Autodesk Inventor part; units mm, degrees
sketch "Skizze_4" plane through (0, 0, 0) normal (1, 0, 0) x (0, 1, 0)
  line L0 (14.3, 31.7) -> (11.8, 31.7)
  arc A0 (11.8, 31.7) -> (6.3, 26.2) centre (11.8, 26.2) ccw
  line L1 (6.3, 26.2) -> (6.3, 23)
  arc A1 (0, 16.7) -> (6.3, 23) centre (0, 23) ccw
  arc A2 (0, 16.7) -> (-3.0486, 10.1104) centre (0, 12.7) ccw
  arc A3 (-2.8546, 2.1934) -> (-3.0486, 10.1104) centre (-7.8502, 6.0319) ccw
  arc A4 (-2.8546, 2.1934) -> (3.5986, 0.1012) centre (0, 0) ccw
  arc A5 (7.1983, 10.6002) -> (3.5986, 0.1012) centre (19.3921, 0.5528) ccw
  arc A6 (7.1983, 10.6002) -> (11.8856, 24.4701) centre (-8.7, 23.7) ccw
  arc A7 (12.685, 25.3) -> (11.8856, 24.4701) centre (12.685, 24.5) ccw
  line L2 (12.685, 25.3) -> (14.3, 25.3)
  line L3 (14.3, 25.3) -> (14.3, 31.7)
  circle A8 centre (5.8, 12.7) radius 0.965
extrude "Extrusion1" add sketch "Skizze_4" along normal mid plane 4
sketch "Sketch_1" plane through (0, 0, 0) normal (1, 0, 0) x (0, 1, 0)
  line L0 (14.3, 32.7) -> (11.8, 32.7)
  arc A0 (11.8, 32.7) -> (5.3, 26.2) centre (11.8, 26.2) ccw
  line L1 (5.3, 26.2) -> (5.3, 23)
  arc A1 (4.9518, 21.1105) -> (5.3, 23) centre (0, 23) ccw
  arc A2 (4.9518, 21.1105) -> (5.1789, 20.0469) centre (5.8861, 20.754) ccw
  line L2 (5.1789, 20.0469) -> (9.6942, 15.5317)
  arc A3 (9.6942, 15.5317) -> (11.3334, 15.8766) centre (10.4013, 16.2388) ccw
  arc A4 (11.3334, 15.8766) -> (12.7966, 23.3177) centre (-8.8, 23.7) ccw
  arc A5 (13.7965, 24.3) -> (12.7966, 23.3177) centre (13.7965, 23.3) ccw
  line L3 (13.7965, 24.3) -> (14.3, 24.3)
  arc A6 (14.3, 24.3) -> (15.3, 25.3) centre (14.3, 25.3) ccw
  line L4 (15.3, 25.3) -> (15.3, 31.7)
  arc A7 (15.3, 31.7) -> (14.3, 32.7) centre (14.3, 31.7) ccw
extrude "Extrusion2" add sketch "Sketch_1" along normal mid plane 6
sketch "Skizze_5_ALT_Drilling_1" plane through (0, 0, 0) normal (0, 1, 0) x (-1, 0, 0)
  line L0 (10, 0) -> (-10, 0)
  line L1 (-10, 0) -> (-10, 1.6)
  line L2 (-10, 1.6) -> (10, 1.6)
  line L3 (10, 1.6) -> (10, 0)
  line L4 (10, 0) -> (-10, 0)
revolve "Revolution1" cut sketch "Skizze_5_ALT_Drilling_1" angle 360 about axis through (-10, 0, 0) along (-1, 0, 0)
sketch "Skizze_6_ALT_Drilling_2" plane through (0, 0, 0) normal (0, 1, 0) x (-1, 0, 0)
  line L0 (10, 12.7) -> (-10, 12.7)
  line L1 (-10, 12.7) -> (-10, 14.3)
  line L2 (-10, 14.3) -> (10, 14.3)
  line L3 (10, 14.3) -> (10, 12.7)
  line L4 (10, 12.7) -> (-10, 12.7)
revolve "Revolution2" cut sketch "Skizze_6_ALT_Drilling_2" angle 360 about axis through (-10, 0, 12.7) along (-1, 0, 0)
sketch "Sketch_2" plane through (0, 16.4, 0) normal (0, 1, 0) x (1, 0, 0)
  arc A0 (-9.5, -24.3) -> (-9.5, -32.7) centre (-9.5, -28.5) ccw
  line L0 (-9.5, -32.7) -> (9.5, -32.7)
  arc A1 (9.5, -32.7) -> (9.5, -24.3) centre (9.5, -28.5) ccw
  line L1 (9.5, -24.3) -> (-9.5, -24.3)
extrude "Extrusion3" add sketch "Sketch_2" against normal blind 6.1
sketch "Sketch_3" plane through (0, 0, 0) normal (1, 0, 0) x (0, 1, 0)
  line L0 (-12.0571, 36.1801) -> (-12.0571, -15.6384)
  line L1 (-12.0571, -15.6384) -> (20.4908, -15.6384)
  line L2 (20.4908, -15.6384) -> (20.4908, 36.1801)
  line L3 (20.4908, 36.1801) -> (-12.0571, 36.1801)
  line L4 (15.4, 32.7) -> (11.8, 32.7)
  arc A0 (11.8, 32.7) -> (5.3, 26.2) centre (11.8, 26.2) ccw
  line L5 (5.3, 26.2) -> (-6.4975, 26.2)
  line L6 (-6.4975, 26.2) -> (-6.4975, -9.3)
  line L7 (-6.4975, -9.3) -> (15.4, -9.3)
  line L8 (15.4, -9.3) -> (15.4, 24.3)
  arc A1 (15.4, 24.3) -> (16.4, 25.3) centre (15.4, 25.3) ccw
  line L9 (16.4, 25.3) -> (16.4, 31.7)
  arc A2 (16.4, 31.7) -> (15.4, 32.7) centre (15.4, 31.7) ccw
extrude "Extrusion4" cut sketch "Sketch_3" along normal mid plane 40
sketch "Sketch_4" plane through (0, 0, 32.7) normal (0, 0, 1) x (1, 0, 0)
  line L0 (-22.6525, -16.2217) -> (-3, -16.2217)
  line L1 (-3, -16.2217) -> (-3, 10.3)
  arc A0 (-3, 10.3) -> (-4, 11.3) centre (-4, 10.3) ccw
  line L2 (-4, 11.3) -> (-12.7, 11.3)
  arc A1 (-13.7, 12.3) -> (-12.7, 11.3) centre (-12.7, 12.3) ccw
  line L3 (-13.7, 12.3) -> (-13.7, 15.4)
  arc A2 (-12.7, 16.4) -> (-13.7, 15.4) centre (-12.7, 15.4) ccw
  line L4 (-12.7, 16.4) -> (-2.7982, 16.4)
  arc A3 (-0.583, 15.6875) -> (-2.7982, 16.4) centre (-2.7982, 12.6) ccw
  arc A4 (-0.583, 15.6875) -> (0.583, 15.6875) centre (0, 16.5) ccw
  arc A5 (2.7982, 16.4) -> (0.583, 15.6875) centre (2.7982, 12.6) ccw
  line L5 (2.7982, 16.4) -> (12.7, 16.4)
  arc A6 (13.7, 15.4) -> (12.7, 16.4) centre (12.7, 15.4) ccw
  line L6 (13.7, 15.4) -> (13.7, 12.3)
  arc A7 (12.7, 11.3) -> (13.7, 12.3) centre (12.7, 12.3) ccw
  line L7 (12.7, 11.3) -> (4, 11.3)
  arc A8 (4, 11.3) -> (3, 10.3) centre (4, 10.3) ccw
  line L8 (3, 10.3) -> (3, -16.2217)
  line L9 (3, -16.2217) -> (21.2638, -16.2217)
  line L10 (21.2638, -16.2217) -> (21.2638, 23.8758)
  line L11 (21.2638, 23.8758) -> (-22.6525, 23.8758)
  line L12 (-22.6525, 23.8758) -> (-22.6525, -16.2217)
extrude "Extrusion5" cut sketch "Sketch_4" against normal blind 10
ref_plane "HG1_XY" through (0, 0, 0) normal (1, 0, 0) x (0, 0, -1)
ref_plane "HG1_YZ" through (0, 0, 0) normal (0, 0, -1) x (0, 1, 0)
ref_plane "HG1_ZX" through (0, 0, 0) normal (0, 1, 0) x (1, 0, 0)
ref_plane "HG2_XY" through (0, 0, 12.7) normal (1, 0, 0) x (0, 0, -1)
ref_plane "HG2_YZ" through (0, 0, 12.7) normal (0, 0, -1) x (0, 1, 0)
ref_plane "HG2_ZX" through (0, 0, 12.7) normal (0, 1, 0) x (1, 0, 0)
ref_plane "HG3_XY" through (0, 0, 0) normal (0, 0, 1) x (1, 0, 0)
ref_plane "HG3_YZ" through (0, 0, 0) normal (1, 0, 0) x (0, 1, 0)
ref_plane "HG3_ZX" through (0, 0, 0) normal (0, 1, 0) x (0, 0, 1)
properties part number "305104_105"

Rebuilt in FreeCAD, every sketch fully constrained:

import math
import FreeCAD as App
import Part
import Sketcher
Q = App.Units.Quantity

doc = App.newDocument("Part")
body = doc.addObject("PartDesign::Body", "Body")

sketch1 = body.newObject("Sketcher::SketchObject", "Sketch")
sketch1.AttachmentSupport = (doc.getObject("YZ_Plane"), [""])
sketch1.MapMode = "FlatFace"
sketch1.addGeometry(Part.LineSegment(App.Vector(14.3, 25.3, 0), App.Vector(14.3, 31.7, 0)), False)
sketch1.addGeometry(Part.LineSegment(App.Vector(14.3, 31.7, 0), App.Vector(11.8, 31.7, 0)), False)
sketch1.addGeometry(Part.ArcOfCircle(Part.Circle(App.Vector(11.8, 26.2, 0), App.Vector(0, 0, 1), 5.5), math.radians(90), math.radians(180)), False)
sketch1.addGeometry(Part.LineSegment(App.Vector(6.3, 26.2, 0), App.Vector(6.3, 23, 0)), False)
sketch1.addGeometry(Part.ArcOfCircle(Part.Circle(App.Vector(0, 23, 0), App.Vector(0, 0, 1), 6.3), math.radians(-90), math.radians(0)), False)
sketch1.addGeometry(Part.ArcOfCircle(Part.Circle(App.Vector(0, 12.7, 0), App.Vector(0, 0, 1), 4), math.radians(90), math.radians(220)), False)
sketch1.addGeometry(Part.ArcOfCircle(Part.Circle(App.Vector(-7.9, 6, 0), App.Vector(0, 0, 1), 6.3), math.radians(-38), math.radians(40)), False)
sketch1.addGeometry(Part.ArcOfCircle(Part.Circle(App.Vector(0, 0, 0), App.Vector(0, 0, 1), 3.6), math.radians(142), math.radians(362)), False)
sketch1.addGeometry(Part.ArcOfCircle(Part.Circle(App.Vector(19.4, 0.6, 0), App.Vector(0, 0, 1), 15.8), math.radians(141), math.radians(182)), False)
sketch1.addGeometry(Part.ArcOfCircle(Part.Circle(App.Vector(-8.7, 23.7, 0), App.Vector(0, 0, 1), 20.6), math.radians(-39), math.radians(2)), False)
sketch1.addGeometry(Part.ArcOfCircle(Part.Circle(App.Vector(12.7, 24.5, 0), App.Vector(0, 0, 1), 0.8), math.radians(90), math.radians(182)), False)
sketch1.addGeometry(Part.LineSegment(App.Vector(12.7, 25.3, 0), App.Vector(14.3, 25.3, 0)), False)
sketch1.addGeometry(Part.Circle(App.Vector(5.8, 12.7, 0), App.Vector(0, 0, 1), 1), False)
sketch1.addConstraint(Sketcher.Constraint("Coincident", 0, 2, 1, 1))
sketch1.addConstraint(Sketcher.Constraint("Tangent", 1, 2, 2, 1))
sketch1.addConstraint(Sketcher.Constraint("Tangent", 2, 2, 3, 1))
sketch1.addConstraint(Sketcher.Constraint("Tangent", 3, 2, 4, 2))
sketch1.addConstraint(Sketcher.Constraint("Tangent", 4, 1, 5, 1))
sketch1.addConstraint(Sketcher.Constraint("Tangent", 5, 2, 6, 2))
sketch1.addConstraint(Sketcher.Constraint("Tangent", 6, 1, 7, 1))
sketch1.addConstraint(Sketcher.Constraint("Tangent", 7, 2, 8, 2))
sketch1.addConstraint(Sketcher.Constraint("Tangent", 8, 1, 9, 1))
sketch1.addConstraint(Sketcher.Constraint("Tangent", 9, 2, 10, 2))
sketch1.addConstraint(Sketcher.Constraint("Tangent", 10, 1, 11, 1))
sketch1.addConstraint(Sketcher.Constraint("Coincident", 11, 2, 0, 1))
sketch1.addConstraint(Sketcher.Constraint("Vertical", 0))
sketch1.addConstraint(Sketcher.Constraint("Horizontal", 1))
sketch1.addConstraint(Sketcher.Constraint("Vertical", 3))
sketch1.addConstraint(Sketcher.Constraint("Horizontal", 11))
sketch1.addConstraint(Sketcher.Constraint("Coincident", 7, 3, -1, 1))
sketch1.addConstraint(Sketcher.Constraint("Equal", 4, 6))
sketch1.addConstraint(Sketcher.Constraint("PointOnObject", 4, 3, -2))
sketch1.addConstraint(Sketcher.Constraint("PointOnObject", 5, 3, -2))
sketch1.addConstraint(Sketcher.Constraint("Horizontal", 5, 3, 12, 3))
sketch1.addConstraint(Sketcher.Constraint("Radius", 5, 4.0))
sketch1.addConstraint(Sketcher.Constraint("Radius", 2, 5.5))
sketch1.addConstraint(Sketcher.Constraint("Radius", 4, 6.3))
sketch1.addConstraint(Sketcher.Constraint("Radius", 7, 3.6))
sketch1.addConstraint(Sketcher.Constraint("Radius", 8, 15.8))
sketch1.addConstraint(Sketcher.Constraint("Radius", 9, 20.6))
sketch1.addConstraint(Sketcher.Constraint("Radius", 10, 0.8))
sketch1.addConstraint(Sketcher.Constraint("Diameter", 12, 1.93))
sketch1.addConstraint(Sketcher.Constraint("DistanceX", 1, 2, 1, 1, 2.5))
sketch1.addConstraint(Sketcher.Constraint("DistanceY", 0, 1, 0, 2, 6.4))
sketch1.addConstraint(Sketcher.Constraint("DistanceY", 3, 2, 3, 1, 3.2))
sketch1.addConstraint(Sketcher.Constraint("DistanceY", -1, 1, 4, 3, 23.0))
sketch1.addConstraint(Sketcher.Constraint("DistanceY", 5, 3, 9, 3, 11.0))
sketch1.addConstraint(Sketcher.Constraint("DistanceX", 12, 3, 2, 3, 6.0))
sketch1.addConstraint(Sketcher.Constraint("DistanceX", 9, 3, -1, 1, 8.7))
pad1 = body.newObject("PartDesign::Pad", "Pad")
pad1.Profile = sketch1
pad1.Length = 4
pad1.Midplane = True

sketch2 = body.newObject("Sketcher::SketchObject", "Sketch001")
sketch2.AttachmentSupport = (doc.getObject("YZ_Plane"), [""])
sketch2.MapMode = "FlatFace"
sketch2.addGeometry(Part.ArcOfCircle(Part.Circle(App.Vector(14.3, 31.7, 0), App.Vector(0, 0, 1), 1), math.radians(0), math.radians(90)), False)
sketch2.addGeometry(Part.LineSegment(App.Vector(14.3, 32.7, 0), App.Vector(11.8, 32.7, 0)), False)
sketch2.addGeometry(Part.ArcOfCircle(Part.Circle(App.Vector(11.8, 26.2, 0), App.Vector(0, 0, 1), 6.5), math.radians(90), math.radians(180)), False)
sketch2.addGeometry(Part.LineSegment(App.Vector(5.3, 26.2, 0), App.Vector(5.3, 23, 0)), False)
sketch2.addGeometry(Part.ArcOfCircle(Part.Circle(App.Vector(0, 23, 0), App.Vector(0, 0, 1), 5.3), math.radians(-21), math.radians(0)), False)
sketch2.addGeometry(Part.ArcOfCircle(Part.Circle(App.Vector(5.9, 20.8, 0), App.Vector(0, 0, 1), 1), math.radians(159), math.radians(225)), False)
sketch2.addGeometry(Part.LineSegment(App.Vector(5.2, 20, 0), App.Vector(9.7, 15.5, 0)), False)
sketch2.addGeometry(Part.ArcOfCircle(Part.Circle(App.Vector(10.4, 16.2, 0), App.Vector(0, 0, 1), 1), math.radians(-135), math.radians(-21)), False)
sketch2.addGeometry(Part.ArcOfCircle(Part.Circle(App.Vector(-8.8, 23.7, 0), App.Vector(0, 0, 1), 21.6), math.radians(-21), math.radians(-1)), False)
sketch2.addGeometry(Part.ArcOfCircle(Part.Circle(App.Vector(13.8, 23.3, 0), App.Vector(0, 0, 1), 1), math.radians(90), math.radians(179)), False)
sketch2.addGeometry(Part.LineSegment(App.Vector(13.8, 24.3, 0), App.Vector(14.3, 24.3, 0)), False)
sketch2.addGeometry(Part.ArcOfCircle(Part.Circle(App.Vector(14.3, 25.3, 0), App.Vector(0, 0, 1), 1), math.radians(-90), math.radians(0)), False)
sketch2.addGeometry(Part.LineSegment(App.Vector(15.3, 25.3, 0), App.Vector(15.3, 31.7, 0)), False)
sketch2.addConstraint(Sketcher.Constraint("Tangent", 0, 2, 1, 1))
sketch2.addConstraint(Sketcher.Constraint("Tangent", 1, 2, 2, 1))
sketch2.addConstraint(Sketcher.Constraint("Tangent", 2, 2, 3, 1))
sketch2.addConstraint(Sketcher.Constraint("Tangent", 3, 2, 4, 2))
sketch2.addConstraint(Sketcher.Constraint("Tangent", 4, 1, 5, 1))
sketch2.addConstraint(Sketcher.Constraint("Tangent", 5, 2, 6, 1))
sketch2.addConstraint(Sketcher.Constraint("Tangent", 6, 2, 7, 1))
sketch2.addConstraint(Sketcher.Constraint("Tangent", 7, 2, 8, 1))
sketch2.addConstraint(Sketcher.Constraint("Tangent", 8, 2, 9, 2))
sketch2.addConstraint(Sketcher.Constraint("Tangent", 9, 1, 10, 1))
sketch2.addConstraint(Sketcher.Constraint("Tangent", 10, 2, 11, 1))
sketch2.addConstraint(Sketcher.Constraint("Tangent", 11, 2, 12, 1))
sketch2.addConstraint(Sketcher.Constraint("Tangent", 12, 2, 0, 1))
sketch2.addConstraint(Sketcher.Constraint("Horizontal", 1))
sketch2.addConstraint(Sketcher.Constraint("Vertical", 3))
sketch2.addConstraint(Sketcher.Constraint("Horizontal", 10))
sketch2.addConstraint(Sketcher.Constraint("Vertical", 12))
sketch2.addConstraint(Sketcher.Constraint("Equal", 0, 5))
sketch2.addConstraint(Sketcher.Constraint("Equal", 5, 7))
sketch2.addConstraint(Sketcher.Constraint("Equal", 7, 9))
sketch2.addConstraint(Sketcher.Constraint("Equal", 9, 11))
sketch2.addConstraint(Sketcher.Constraint("Radius", 0, 1.0))
sketch2.addConstraint(Sketcher.Constraint("Radius", 2, 6.5))
sketch2.addConstraint(Sketcher.Constraint("Radius", 8, 21.6))
sketch2.addConstraint(Sketcher.Constraint("Angle", 6, Q("-44.9994 deg")))
sketch2.addConstraint(Sketcher.Constraint("DistanceX", 1, 2, 1, 1, 2.5))
sketch2.addConstraint(Sketcher.Constraint("DistanceY", 3, 2, 3, 1, 3.2))
sketch2.addConstraint(Sketcher.Constraint("DistanceY", 12, 1, 12, 2, 6.4))
sketch2.addConstraint(Sketcher.Constraint("DistanceY", -1, 1, 3, 2, 23.0))
sketch2.addConstraint(Sketcher.Constraint("DistanceY", 8, 3, 0, 3, 8.0))
sketch2.addConstraint(Sketcher.Constraint("DistanceX", -1, 1, 0, 3, 14.3))
sketch2.addConstraint(Sketcher.Constraint("DistanceX", 8, 3, -1, 1, 8.8))
sketch2.addConstraint(Sketcher.Constraint("Radius", 4, 5.2985))
sketch2.addConstraint(Sketcher.Constraint("DistanceX", -1, 1, 5, 3, 5.886))
pad2 = body.newObject("PartDesign::Pad", "Pad001")
pad2.Profile = sketch2
pad2.Length = 6
pad2.Midplane = True

sketch3 = body.newObject("Sketcher::SketchObject", "Sketch002")
sketch3.AttachmentSupport = (doc.getObject("XZ_Plane"), [""])
sketch3.MapMode = "FlatFace"
sketch3.addGeometry(Part.LineSegment(App.Vector(10, 0, 0), App.Vector(-10, 0, 0)), False)
sketch3.addGeometry(Part.LineSegment(App.Vector(-10, 0, 0), App.Vector(-10, 1.6, 0)), False)
sketch3.addGeometry(Part.LineSegment(App.Vector(-10, 1.6, 0), App.Vector(10, 1.6, 0)), False)
sketch3.addGeometry(Part.LineSegment(App.Vector(10, 1.6, 0), App.Vector(10, 0, 0)), False)
sketch3.addConstraint(Sketcher.Constraint("Coincident", 0, 2, 1, 1))
sketch3.addConstraint(Sketcher.Constraint("Coincident", 1, 2, 2, 1))
sketch3.addConstraint(Sketcher.Constraint("Coincident", 2, 2, 3, 1))
sketch3.addConstraint(Sketcher.Constraint("Coincident", 3, 2, 0, 1))
sketch3.addConstraint(Sketcher.Constraint("Horizontal", 0))
sketch3.addConstraint(Sketcher.Constraint("Vertical", 1))
sketch3.addConstraint(Sketcher.Constraint("Horizontal", 2))
sketch3.addConstraint(Sketcher.Constraint("Vertical", 3))
sketch3.addConstraint(Sketcher.Constraint("Symmetric", 0, 2, 3, 2, -1, 1))
sketch3.addConstraint(Sketcher.Constraint("DistanceX", 0, 2, 0, 1, 20.0))
sketch3.addConstraint(Sketcher.Constraint("DistanceY", 1, 1, 1, 2, 1.6))
groove = body.newObject("PartDesign::Groove", "Groove")
groove.Profile = sketch3
groove.ReferenceAxis = (sketch3, ["H_Axis"])
groove.Angle = 360

sketch4 = body.newObject("Sketcher::SketchObject", "Sketch003")
sketch4.AttachmentSupport = (doc.getObject("XZ_Plane"), [""])
sketch4.MapMode = "FlatFace"
sketch4.addGeometry(Part.LineSegment(App.Vector(10, 12.7, 0), App.Vector(-10, 12.7, 0)), False)
sketch4.addGeometry(Part.LineSegment(App.Vector(-10, 12.7, 0), App.Vector(-10, 14.3, 0)), False)
sketch4.addGeometry(Part.LineSegment(App.Vector(-10, 14.3, 0), App.Vector(10, 14.3, 0)), False)
sketch4.addGeometry(Part.LineSegment(App.Vector(10, 14.3, 0), App.Vector(10, 12.7, 0)), False)
sketch4.addGeometry(Part.LineSegment(App.Vector(10, 12.7, 0), App.Vector(-10, 12.7, 0)), True)
sketch4.addConstraint(Sketcher.Constraint("Coincident", 0, 2, 1, 1))
sketch4.addConstraint(Sketcher.Constraint("Coincident", 1, 2, 2, 1))
sketch4.addConstraint(Sketcher.Constraint("Coincident", 2, 2, 3, 1))
sketch4.addConstraint(Sketcher.Constraint("Coincident", 3, 2, 0, 1))
sketch4.addConstraint(Sketcher.Constraint("Horizontal", 0))
sketch4.addConstraint(Sketcher.Constraint("Vertical", 1))
sketch4.addConstraint(Sketcher.Constraint("Horizontal", 2))
sketch4.addConstraint(Sketcher.Constraint("Vertical", 3))
sketch4.addConstraint(Sketcher.Constraint("Horizontal", 4))
sketch4.addConstraint(Sketcher.Constraint("Coincident", 4, 1, 3, 2))
sketch4.addConstraint(Sketcher.Constraint("Vertical", 1, 2, 4, 2))
sketch4.addConstraint(Sketcher.Constraint("DistanceX", 0, 2, 0, 1, 20.0))
sketch4.addConstraint(Sketcher.Constraint("DistanceY", 1, 1, 1, 2, 1.6))
sketch4.addConstraint(Sketcher.Constraint("DistanceX", 0, 2, -1, 1, 10.0))
sketch4.addConstraint(Sketcher.Constraint("DistanceY", -1, 1, 0, 2, 12.7))
groove2 = body.newObject("PartDesign::Groove", "Groove001")
groove2.Profile = sketch4
groove2.ReferenceAxis = (sketch4, ["Axis0"])
groove2.Angle = 360

sketch5 = body.newObject("Sketcher::SketchObject", "Sketch004")
sketch5.AttachmentSupport = (doc.getObject("XZ_Plane"), [""])
sketch5.MapMode = "FlatFace"
sketch5.AttachmentOffset = App.Placement(App.Vector(0, 0, -16.4), App.Rotation())
sketch5.addGeometry(Part.LineSegment(App.Vector(9.5, 24.3, 0), App.Vector(-9.5, 24.3, 0)), False)
sketch5.addGeometry(Part.ArcOfCircle(Part.Circle(App.Vector(-9.5, 28.5, 0), App.Vector(0, 0, 1), 4.2), math.radians(90), math.radians(270)), False)
sketch5.addGeometry(Part.LineSegment(App.Vector(-9.5, 32.7, 0), App.Vector(9.5, 32.7, 0)), False)
sketch5.addGeometry(Part.ArcOfCircle(Part.Circle(App.Vector(9.5, 28.5, 0), App.Vector(0, 0, 1), 4.2), math.radians(-90), math.radians(90)), False)
sketch5.addConstraint(Sketcher.Constraint("Tangent", 0, 2, 1, 2))
sketch5.addConstraint(Sketcher.Constraint("Tangent", 1, 1, 2, 1))
sketch5.addConstraint(Sketcher.Constraint("Tangent", 2, 2, 3, 2))
sketch5.addConstraint(Sketcher.Constraint("Tangent", 3, 1, 0, 1))
sketch5.addConstraint(Sketcher.Constraint("Horizontal", 0))
sketch5.addConstraint(Sketcher.Constraint("Horizontal", 2))
sketch5.addConstraint(Sketcher.Constraint("Radius", 1, 4.2))
sketch5.addConstraint(Sketcher.Constraint("DistanceX", 0, 2, 0, 1, 19.0))
sketch5.addConstraint(Sketcher.Constraint("DistanceX", 1, 3, -1, 1, 9.5))
sketch5.addConstraint(Sketcher.Constraint("DistanceY", -1, 1, 1, 3, 28.5))
pad3 = body.newObject("PartDesign::Pad", "Pad002")
pad3.Profile = sketch5
pad3.Length = 6.1

sketch6 = body.newObject("Sketcher::SketchObject", "Sketch005")
sketch6.AttachmentSupport = (doc.getObject("YZ_Plane"), [""])
sketch6.MapMode = "FlatFace"
sketch6.addGeometry(Part.LineSegment(App.Vector(20.5, 36.2, 0), App.Vector(-12.1, 36.2, 0)), False)
sketch6.addGeometry(Part.LineSegment(App.Vector(-12.1, 36.2, 0), App.Vector(-12.1, -15.6, 0)), False)
sketch6.addGeometry(Part.LineSegment(App.Vector(-12.1, -15.6, 0), App.Vector(20.5, -15.6, 0)), False)
sketch6.addGeometry(Part.LineSegment(App.Vector(20.5, -15.6, 0), App.Vector(20.5, 36.2, 0)), False)
sketch6.addGeometry(Part.LineSegment(App.Vector(11.8, 32.7, 0), App.Vector(15.4, 32.7, 0)), False)
sketch6.addGeometry(Part.ArcOfCircle(Part.Circle(App.Vector(15.4, 31.7, 0), App.Vector(0, 0, 1), 1), math.radians(0), math.radians(90)), False)
sketch6.addGeometry(Part.LineSegment(App.Vector(16.4, 31.7, 0), App.Vector(16.4, 25.3, 0)), False)
sketch6.addGeometry(Part.ArcOfCircle(Part.Circle(App.Vector(15.4, 25.3, 0), App.Vector(0, 0, 1), 1), math.radians(-90), math.radians(0)), False)
sketch6.addGeometry(Part.LineSegment(App.Vector(15.4, 24.3, 0), App.Vector(15.4, -9.3, 0)), False)
sketch6.addGeometry(Part.LineSegment(App.Vector(15.4, -9.3, 0), App.Vector(-6.5, -9.3, 0)), False)
sketch6.addGeometry(Part.LineSegment(App.Vector(-6.5, -9.3, 0), App.Vector(-6.5, 26.2, 0)), False)
sketch6.addGeometry(Part.LineSegment(App.Vector(-6.5, 26.2, 0), App.Vector(5.3, 26.2, 0)), False)
sketch6.addGeometry(Part.ArcOfCircle(Part.Circle(App.Vector(11.8, 26.2, 0), App.Vector(0, 0, 1), 6.5), math.radians(90), math.radians(180)), False)
sketch6.addConstraint(Sketcher.Constraint("Coincident", 0, 2, 1, 1))
sketch6.addConstraint(Sketcher.Constraint("Coincident", 1, 2, 2, 1))
sketch6.addConstraint(Sketcher.Constraint("Coincident", 2, 2, 3, 1))
sketch6.addConstraint(Sketcher.Constraint("Coincident", 3, 2, 0, 1))
sketch6.addConstraint(Sketcher.Constraint("Tangent", 4, 2, 5, 2))
sketch6.addConstraint(Sketcher.Constraint("Tangent", 5, 1, 6, 1))
sketch6.addConstraint(Sketcher.Constraint("Tangent", 6, 2, 7, 2))
sketch6.addConstraint(Sketcher.Constraint("Coincident", 7, 1, 8, 1))
sketch6.addConstraint(Sketcher.Constraint("Coincident", 8, 2, 9, 1))
sketch6.addConstraint(Sketcher.Constraint("Coincident", 9, 2, 10, 1))
sketch6.addConstraint(Sketcher.Constraint("Coincident", 10, 2, 11, 1))
sketch6.addConstraint(Sketcher.Constraint("Coincident", 11, 2, 12, 2))
sketch6.addConstraint(Sketcher.Constraint("Tangent", 12, 1, 4, 1))
sketch6.addConstraint(Sketcher.Constraint("Horizontal", 0))
sketch6.addConstraint(Sketcher.Constraint("Vertical", 1))
sketch6.addConstraint(Sketcher.Constraint("Horizontal", 2))
sketch6.addConstraint(Sketcher.Constraint("Vertical", 3))
sketch6.addConstraint(Sketcher.Constraint("Horizontal", 4))
sketch6.addConstraint(Sketcher.Constraint("Vertical", 6))
sketch6.addConstraint(Sketcher.Constraint("Vertical", 8))
sketch6.addConstraint(Sketcher.Constraint("Horizontal", 9))
sketch6.addConstraint(Sketcher.Constraint("Vertical", 10))
sketch6.addConstraint(Sketcher.Constraint("Horizontal", 11))
sketch6.addConstraint(Sketcher.Constraint("Equal", 5, 7))
sketch6.addConstraint(Sketcher.Constraint("Horizontal", 12, 3, 10, 2))
sketch6.addConstraint(Sketcher.Constraint("Vertical", 4, 2, 7, 1))
sketch6.addConstraint(Sketcher.Constraint("Radius", 5, 1.0))
sketch6.addConstraint(Sketcher.Constraint("Radius", 12, 6.5))
sketch6.addConstraint(Sketcher.Constraint("DistanceX", 4, 1, 4, 2, 3.6))
sketch6.addConstraint(Sketcher.Constraint("DistanceY", 6, 2, 6, 1, 6.4))
sketch6.addConstraint(Sketcher.Constraint("DistanceY", 8, 2, 8, 1, 33.6))
sketch6.addConstraint(Sketcher.Constraint("DistanceX", -1, 1, 5, 3, 15.4))
sketch6.addConstraint(Sketcher.Constraint("DistanceY", -1, 1, 5, 3, 31.7))
sketch6.addConstraint(Sketcher.Constraint("DistanceX", 0, 2, 0, 1, 32.548))
sketch6.addConstraint(Sketcher.Constraint("DistanceY", -1, 1, 0, 2, 36.18))
sketch6.addConstraint(Sketcher.Constraint("DistanceX", 9, 2, 9, 1, 21.8975))
sketch6.addConstraint(Sketcher.Constraint("DistanceY", 1, 2, 1, 1, 51.8185))
sketch6.addConstraint(Sketcher.Constraint("DistanceX", 0, 2, -1, 1, 12.057))
pocket1 = body.newObject("PartDesign::Pocket", "Pocket")
pocket1.Profile = sketch6
pocket1.Length = 40
pocket1.Midplane = True

sketch7 = body.newObject("Sketcher::SketchObject", "Sketch006")
sketch7.AttachmentSupport = (doc.getObject("XY_Plane"), [""])
sketch7.MapMode = "FlatFace"
sketch7.AttachmentOffset = App.Placement(App.Vector(0, 0, 32.7), App.Rotation())
sketch7.addGeometry(Part.LineSegment(App.Vector(-22.7, 23.9, 0), App.Vector(-22.7, -16.2, 0)), False)
sketch7.addGeometry(Part.LineSegment(App.Vector(-22.7, -16.2, 0), App.Vector(-3, -16.2, 0)), False)
sketch7.addGeometry(Part.LineSegment(App.Vector(-3, -16.2, 0), App.Vector(-3, 10.3, 0)), False)
sketch7.addGeometry(Part.ArcOfCircle(Part.Circle(App.Vector(-4, 10.3, 0), App.Vector(0, 0, 1), 1), math.radians(0), math.radians(90)), False)
sketch7.addGeometry(Part.LineSegment(App.Vector(-4, 11.3, 0), App.Vector(-12.7, 11.3, 0)), False)
sketch7.addGeometry(Part.ArcOfCircle(Part.Circle(App.Vector(-12.7, 12.3, 0), App.Vector(0, 0, 1), 1), math.radians(180), math.radians(270)), False)
sketch7.addGeometry(Part.LineSegment(App.Vector(-13.7, 12.3, 0), App.Vector(-13.7, 15.4, 0)), False)
sketch7.addGeometry(Part.ArcOfCircle(Part.Circle(App.Vector(-12.7, 15.4, 0), App.Vector(0, 0, 1), 1), math.radians(90), math.radians(180)), False)
sketch7.addGeometry(Part.LineSegment(App.Vector(-12.7, 16.4, 0), App.Vector(-2.8, 16.4, 0)), False)
sketch7.addGeometry(Part.ArcOfCircle(Part.Circle(App.Vector(-2.8, 12.6, 0), App.Vector(0, 0, 1), 3.8), math.radians(54), math.radians(90)), False)
sketch7.addGeometry(Part.ArcOfCircle(Part.Circle(App.Vector(0, 16.5, 0), App.Vector(0, 0, 1), 1), math.radians(-126), math.radians(-54)), False)
sketch7.addGeometry(Part.ArcOfCircle(Part.Circle(App.Vector(2.8, 12.6, 0), App.Vector(0, 0, 1), 3.8), math.radians(90), math.radians(126)), False)
sketch7.addGeometry(Part.LineSegment(App.Vector(2.8, 16.4, 0), App.Vector(12.7, 16.4, 0)), False)
sketch7.addGeometry(Part.ArcOfCircle(Part.Circle(App.Vector(12.7, 15.4, 0), App.Vector(0, 0, 1), 1), math.radians(0), math.radians(90)), False)
sketch7.addGeometry(Part.LineSegment(App.Vector(13.7, 15.4, 0), App.Vector(13.7, 12.3, 0)), False)
sketch7.addGeometry(Part.ArcOfCircle(Part.Circle(App.Vector(12.7, 12.3, 0), App.Vector(0, 0, 1), 1), math.radians(-90), math.radians(0)), False)
sketch7.addGeometry(Part.LineSegment(App.Vector(12.7, 11.3, 0), App.Vector(4, 11.3, 0)), False)
sketch7.addGeometry(Part.ArcOfCircle(Part.Circle(App.Vector(4, 10.3, 0), App.Vector(0, 0, 1), 1), math.radians(90), math.radians(180)), False)
sketch7.addGeometry(Part.LineSegment(App.Vector(3, 10.3, 0), App.Vector(3, -16.2, 0)), False)
sketch7.addGeometry(Part.LineSegment(App.Vector(3, -16.2, 0), App.Vector(21.3, -16.2, 0)), False)
sketch7.addGeometry(Part.LineSegment(App.Vector(21.3, -16.2, 0), App.Vector(21.3, 23.9, 0)), False)
sketch7.addGeometry(Part.LineSegment(App.Vector(21.3, 23.9, 0), App.Vector(-22.7, 23.9, 0)), False)
sketch7.addConstraint(Sketcher.Constraint("Coincident", 0, 2, 1, 1))
sketch7.addConstraint(Sketcher.Constraint("Coincident", 1, 2, 2, 1))
sketch7.addConstraint(Sketcher.Constraint("Tangent", 2, 2, 3, 1))
sketch7.addConstraint(Sketcher.Constraint("Tangent", 3, 2, 4, 1))
sketch7.addConstraint(Sketcher.Constraint("Tangent", 4, 2, 5, 2))
sketch7.addConstraint(Sketcher.Constraint("Tangent", 5, 1, 6, 1))
sketch7.addConstraint(Sketcher.Constraint("Tangent", 6, 2, 7, 2))
sketch7.addConstraint(Sketcher.Constraint("Tangent", 7, 1, 8, 1))
sketch7.addConstraint(Sketcher.Constraint("Tangent", 8, 2, 9, 2))
sketch7.addConstraint(Sketcher.Constraint("Tangent", 9, 1, 10, 1))
sketch7.addConstraint(Sketcher.Constraint("Tangent", 10, 2, 11, 2))
sketch7.addConstraint(Sketcher.Constraint("Tangent", 11, 1, 12, 1))
sketch7.addConstraint(Sketcher.Constraint("Tangent", 12, 2, 13, 2))
sketch7.addConstraint(Sketcher.Constraint("Tangent", 13, 1, 14, 1))
sketch7.addConstraint(Sketcher.Constraint("Tangent", 14, 2, 15, 2))
sketch7.addConstraint(Sketcher.Constraint("Tangent", 15, 1, 16, 1))
sketch7.addConstraint(Sketcher.Constraint("Tangent", 16, 2, 17, 1))
sketch7.addConstraint(Sketcher.Constraint("Tangent", 17, 2, 18, 1))
sketch7.addConstraint(Sketcher.Constraint("Coincident", 18, 2, 19, 1))
sketch7.addConstraint(Sketcher.Constraint("Coincident", 19, 2, 20, 1))
sketch7.addConstraint(Sketcher.Constraint("Coincident", 20, 2, 21, 1))
sketch7.addConstraint(Sketcher.Constraint("Coincident", 21, 2, 0, 1))
sketch7.addConstraint(Sketcher.Constraint("Vertical", 0))
sketch7.addConstraint(Sketcher.Constraint("Horizontal", 1))
sketch7.addConstraint(Sketcher.Constraint("Vertical", 2))
sketch7.addConstraint(Sketcher.Constraint("Horizontal", 4))
sketch7.addConstraint(Sketcher.Constraint("Vertical", 6))
sketch7.addConstraint(Sketcher.Constraint("Horizontal", 8))
sketch7.addConstraint(Sketcher.Constraint("Horizontal", 12))
sketch7.addConstraint(Sketcher.Constraint("Vertical", 14))
sketch7.addConstraint(Sketcher.Constraint("Horizontal", 16))
sketch7.addConstraint(Sketcher.Constraint("Vertical", 18))
sketch7.addConstraint(Sketcher.Constraint("Horizontal", 19))
sketch7.addConstraint(Sketcher.Constraint("Vertical", 20))
sketch7.addConstraint(Sketcher.Constraint("Horizontal", 21))
sketch7.addConstraint(Sketcher.Constraint("Equal", 3, 5))
sketch7.addConstraint(Sketcher.Constraint("Equal", 5, 7))
sketch7.addConstraint(Sketcher.Constraint("Equal", 7, 10))
sketch7.addConstraint(Sketcher.Constraint("Equal", 9, 11))
sketch7.addConstraint(Sketcher.Constraint("Equal", 10, 13))
sketch7.addConstraint(Sketcher.Constraint("Equal", 13, 15))
sketch7.addConstraint(Sketcher.Constraint("Equal", 15, 17))
sketch7.addConstraint(Sketcher.Constraint("Symmetric", 9, 3, 11, 3, -2))
sketch7.addConstraint(Sketcher.Constraint("Symmetric", 5, 3, 15, 3, -2))
sketch7.addConstraint(Sketcher.Constraint("Symmetric", 1, 2, 18, 2, -2))
sketch7.addConstraint(Sketcher.Constraint("Radius", 3, 1.0))
sketch7.addConstraint(Sketcher.Constraint("Radius", 9, 3.8))
sketch7.addConstraint(Sketcher.Constraint("DistanceX", 4, 2, 4, 1, 8.7))
sketch7.addConstraint(Sketcher.Constraint("DistanceY", 6, 1, 6, 2, 3.1))
sketch7.addConstraint(Sketcher.Constraint("DistanceX", 3, 3, -1, 1, 4.0))
sketch7.addConstraint(Sketcher.Constraint("DistanceY", -1, 1, 3, 3, 10.3))
sketch7.addConstraint(Sketcher.Constraint("DistanceY", -1, 1, 10, 3, 16.5))
sketch7.addConstraint(Sketcher.Constraint("DistanceX", 1, 1, 1, 2, 19.6525))
sketch7.addConstraint(Sketcher.Constraint("DistanceX", 19, 1, 19, 2, 18.2638))
sketch7.addConstraint(Sketcher.Constraint("DistanceY", 0, 2, 0, 1, 40.0975))
sketch7.addConstraint(Sketcher.Constraint("DistanceY", 2, 1, 2, 2, 26.5217))
pocket2 = body.newObject("PartDesign::Pocket", "Pocket001")
pocket2.Profile = sketch7
pocket2.Length = 10

doc.recompute()
